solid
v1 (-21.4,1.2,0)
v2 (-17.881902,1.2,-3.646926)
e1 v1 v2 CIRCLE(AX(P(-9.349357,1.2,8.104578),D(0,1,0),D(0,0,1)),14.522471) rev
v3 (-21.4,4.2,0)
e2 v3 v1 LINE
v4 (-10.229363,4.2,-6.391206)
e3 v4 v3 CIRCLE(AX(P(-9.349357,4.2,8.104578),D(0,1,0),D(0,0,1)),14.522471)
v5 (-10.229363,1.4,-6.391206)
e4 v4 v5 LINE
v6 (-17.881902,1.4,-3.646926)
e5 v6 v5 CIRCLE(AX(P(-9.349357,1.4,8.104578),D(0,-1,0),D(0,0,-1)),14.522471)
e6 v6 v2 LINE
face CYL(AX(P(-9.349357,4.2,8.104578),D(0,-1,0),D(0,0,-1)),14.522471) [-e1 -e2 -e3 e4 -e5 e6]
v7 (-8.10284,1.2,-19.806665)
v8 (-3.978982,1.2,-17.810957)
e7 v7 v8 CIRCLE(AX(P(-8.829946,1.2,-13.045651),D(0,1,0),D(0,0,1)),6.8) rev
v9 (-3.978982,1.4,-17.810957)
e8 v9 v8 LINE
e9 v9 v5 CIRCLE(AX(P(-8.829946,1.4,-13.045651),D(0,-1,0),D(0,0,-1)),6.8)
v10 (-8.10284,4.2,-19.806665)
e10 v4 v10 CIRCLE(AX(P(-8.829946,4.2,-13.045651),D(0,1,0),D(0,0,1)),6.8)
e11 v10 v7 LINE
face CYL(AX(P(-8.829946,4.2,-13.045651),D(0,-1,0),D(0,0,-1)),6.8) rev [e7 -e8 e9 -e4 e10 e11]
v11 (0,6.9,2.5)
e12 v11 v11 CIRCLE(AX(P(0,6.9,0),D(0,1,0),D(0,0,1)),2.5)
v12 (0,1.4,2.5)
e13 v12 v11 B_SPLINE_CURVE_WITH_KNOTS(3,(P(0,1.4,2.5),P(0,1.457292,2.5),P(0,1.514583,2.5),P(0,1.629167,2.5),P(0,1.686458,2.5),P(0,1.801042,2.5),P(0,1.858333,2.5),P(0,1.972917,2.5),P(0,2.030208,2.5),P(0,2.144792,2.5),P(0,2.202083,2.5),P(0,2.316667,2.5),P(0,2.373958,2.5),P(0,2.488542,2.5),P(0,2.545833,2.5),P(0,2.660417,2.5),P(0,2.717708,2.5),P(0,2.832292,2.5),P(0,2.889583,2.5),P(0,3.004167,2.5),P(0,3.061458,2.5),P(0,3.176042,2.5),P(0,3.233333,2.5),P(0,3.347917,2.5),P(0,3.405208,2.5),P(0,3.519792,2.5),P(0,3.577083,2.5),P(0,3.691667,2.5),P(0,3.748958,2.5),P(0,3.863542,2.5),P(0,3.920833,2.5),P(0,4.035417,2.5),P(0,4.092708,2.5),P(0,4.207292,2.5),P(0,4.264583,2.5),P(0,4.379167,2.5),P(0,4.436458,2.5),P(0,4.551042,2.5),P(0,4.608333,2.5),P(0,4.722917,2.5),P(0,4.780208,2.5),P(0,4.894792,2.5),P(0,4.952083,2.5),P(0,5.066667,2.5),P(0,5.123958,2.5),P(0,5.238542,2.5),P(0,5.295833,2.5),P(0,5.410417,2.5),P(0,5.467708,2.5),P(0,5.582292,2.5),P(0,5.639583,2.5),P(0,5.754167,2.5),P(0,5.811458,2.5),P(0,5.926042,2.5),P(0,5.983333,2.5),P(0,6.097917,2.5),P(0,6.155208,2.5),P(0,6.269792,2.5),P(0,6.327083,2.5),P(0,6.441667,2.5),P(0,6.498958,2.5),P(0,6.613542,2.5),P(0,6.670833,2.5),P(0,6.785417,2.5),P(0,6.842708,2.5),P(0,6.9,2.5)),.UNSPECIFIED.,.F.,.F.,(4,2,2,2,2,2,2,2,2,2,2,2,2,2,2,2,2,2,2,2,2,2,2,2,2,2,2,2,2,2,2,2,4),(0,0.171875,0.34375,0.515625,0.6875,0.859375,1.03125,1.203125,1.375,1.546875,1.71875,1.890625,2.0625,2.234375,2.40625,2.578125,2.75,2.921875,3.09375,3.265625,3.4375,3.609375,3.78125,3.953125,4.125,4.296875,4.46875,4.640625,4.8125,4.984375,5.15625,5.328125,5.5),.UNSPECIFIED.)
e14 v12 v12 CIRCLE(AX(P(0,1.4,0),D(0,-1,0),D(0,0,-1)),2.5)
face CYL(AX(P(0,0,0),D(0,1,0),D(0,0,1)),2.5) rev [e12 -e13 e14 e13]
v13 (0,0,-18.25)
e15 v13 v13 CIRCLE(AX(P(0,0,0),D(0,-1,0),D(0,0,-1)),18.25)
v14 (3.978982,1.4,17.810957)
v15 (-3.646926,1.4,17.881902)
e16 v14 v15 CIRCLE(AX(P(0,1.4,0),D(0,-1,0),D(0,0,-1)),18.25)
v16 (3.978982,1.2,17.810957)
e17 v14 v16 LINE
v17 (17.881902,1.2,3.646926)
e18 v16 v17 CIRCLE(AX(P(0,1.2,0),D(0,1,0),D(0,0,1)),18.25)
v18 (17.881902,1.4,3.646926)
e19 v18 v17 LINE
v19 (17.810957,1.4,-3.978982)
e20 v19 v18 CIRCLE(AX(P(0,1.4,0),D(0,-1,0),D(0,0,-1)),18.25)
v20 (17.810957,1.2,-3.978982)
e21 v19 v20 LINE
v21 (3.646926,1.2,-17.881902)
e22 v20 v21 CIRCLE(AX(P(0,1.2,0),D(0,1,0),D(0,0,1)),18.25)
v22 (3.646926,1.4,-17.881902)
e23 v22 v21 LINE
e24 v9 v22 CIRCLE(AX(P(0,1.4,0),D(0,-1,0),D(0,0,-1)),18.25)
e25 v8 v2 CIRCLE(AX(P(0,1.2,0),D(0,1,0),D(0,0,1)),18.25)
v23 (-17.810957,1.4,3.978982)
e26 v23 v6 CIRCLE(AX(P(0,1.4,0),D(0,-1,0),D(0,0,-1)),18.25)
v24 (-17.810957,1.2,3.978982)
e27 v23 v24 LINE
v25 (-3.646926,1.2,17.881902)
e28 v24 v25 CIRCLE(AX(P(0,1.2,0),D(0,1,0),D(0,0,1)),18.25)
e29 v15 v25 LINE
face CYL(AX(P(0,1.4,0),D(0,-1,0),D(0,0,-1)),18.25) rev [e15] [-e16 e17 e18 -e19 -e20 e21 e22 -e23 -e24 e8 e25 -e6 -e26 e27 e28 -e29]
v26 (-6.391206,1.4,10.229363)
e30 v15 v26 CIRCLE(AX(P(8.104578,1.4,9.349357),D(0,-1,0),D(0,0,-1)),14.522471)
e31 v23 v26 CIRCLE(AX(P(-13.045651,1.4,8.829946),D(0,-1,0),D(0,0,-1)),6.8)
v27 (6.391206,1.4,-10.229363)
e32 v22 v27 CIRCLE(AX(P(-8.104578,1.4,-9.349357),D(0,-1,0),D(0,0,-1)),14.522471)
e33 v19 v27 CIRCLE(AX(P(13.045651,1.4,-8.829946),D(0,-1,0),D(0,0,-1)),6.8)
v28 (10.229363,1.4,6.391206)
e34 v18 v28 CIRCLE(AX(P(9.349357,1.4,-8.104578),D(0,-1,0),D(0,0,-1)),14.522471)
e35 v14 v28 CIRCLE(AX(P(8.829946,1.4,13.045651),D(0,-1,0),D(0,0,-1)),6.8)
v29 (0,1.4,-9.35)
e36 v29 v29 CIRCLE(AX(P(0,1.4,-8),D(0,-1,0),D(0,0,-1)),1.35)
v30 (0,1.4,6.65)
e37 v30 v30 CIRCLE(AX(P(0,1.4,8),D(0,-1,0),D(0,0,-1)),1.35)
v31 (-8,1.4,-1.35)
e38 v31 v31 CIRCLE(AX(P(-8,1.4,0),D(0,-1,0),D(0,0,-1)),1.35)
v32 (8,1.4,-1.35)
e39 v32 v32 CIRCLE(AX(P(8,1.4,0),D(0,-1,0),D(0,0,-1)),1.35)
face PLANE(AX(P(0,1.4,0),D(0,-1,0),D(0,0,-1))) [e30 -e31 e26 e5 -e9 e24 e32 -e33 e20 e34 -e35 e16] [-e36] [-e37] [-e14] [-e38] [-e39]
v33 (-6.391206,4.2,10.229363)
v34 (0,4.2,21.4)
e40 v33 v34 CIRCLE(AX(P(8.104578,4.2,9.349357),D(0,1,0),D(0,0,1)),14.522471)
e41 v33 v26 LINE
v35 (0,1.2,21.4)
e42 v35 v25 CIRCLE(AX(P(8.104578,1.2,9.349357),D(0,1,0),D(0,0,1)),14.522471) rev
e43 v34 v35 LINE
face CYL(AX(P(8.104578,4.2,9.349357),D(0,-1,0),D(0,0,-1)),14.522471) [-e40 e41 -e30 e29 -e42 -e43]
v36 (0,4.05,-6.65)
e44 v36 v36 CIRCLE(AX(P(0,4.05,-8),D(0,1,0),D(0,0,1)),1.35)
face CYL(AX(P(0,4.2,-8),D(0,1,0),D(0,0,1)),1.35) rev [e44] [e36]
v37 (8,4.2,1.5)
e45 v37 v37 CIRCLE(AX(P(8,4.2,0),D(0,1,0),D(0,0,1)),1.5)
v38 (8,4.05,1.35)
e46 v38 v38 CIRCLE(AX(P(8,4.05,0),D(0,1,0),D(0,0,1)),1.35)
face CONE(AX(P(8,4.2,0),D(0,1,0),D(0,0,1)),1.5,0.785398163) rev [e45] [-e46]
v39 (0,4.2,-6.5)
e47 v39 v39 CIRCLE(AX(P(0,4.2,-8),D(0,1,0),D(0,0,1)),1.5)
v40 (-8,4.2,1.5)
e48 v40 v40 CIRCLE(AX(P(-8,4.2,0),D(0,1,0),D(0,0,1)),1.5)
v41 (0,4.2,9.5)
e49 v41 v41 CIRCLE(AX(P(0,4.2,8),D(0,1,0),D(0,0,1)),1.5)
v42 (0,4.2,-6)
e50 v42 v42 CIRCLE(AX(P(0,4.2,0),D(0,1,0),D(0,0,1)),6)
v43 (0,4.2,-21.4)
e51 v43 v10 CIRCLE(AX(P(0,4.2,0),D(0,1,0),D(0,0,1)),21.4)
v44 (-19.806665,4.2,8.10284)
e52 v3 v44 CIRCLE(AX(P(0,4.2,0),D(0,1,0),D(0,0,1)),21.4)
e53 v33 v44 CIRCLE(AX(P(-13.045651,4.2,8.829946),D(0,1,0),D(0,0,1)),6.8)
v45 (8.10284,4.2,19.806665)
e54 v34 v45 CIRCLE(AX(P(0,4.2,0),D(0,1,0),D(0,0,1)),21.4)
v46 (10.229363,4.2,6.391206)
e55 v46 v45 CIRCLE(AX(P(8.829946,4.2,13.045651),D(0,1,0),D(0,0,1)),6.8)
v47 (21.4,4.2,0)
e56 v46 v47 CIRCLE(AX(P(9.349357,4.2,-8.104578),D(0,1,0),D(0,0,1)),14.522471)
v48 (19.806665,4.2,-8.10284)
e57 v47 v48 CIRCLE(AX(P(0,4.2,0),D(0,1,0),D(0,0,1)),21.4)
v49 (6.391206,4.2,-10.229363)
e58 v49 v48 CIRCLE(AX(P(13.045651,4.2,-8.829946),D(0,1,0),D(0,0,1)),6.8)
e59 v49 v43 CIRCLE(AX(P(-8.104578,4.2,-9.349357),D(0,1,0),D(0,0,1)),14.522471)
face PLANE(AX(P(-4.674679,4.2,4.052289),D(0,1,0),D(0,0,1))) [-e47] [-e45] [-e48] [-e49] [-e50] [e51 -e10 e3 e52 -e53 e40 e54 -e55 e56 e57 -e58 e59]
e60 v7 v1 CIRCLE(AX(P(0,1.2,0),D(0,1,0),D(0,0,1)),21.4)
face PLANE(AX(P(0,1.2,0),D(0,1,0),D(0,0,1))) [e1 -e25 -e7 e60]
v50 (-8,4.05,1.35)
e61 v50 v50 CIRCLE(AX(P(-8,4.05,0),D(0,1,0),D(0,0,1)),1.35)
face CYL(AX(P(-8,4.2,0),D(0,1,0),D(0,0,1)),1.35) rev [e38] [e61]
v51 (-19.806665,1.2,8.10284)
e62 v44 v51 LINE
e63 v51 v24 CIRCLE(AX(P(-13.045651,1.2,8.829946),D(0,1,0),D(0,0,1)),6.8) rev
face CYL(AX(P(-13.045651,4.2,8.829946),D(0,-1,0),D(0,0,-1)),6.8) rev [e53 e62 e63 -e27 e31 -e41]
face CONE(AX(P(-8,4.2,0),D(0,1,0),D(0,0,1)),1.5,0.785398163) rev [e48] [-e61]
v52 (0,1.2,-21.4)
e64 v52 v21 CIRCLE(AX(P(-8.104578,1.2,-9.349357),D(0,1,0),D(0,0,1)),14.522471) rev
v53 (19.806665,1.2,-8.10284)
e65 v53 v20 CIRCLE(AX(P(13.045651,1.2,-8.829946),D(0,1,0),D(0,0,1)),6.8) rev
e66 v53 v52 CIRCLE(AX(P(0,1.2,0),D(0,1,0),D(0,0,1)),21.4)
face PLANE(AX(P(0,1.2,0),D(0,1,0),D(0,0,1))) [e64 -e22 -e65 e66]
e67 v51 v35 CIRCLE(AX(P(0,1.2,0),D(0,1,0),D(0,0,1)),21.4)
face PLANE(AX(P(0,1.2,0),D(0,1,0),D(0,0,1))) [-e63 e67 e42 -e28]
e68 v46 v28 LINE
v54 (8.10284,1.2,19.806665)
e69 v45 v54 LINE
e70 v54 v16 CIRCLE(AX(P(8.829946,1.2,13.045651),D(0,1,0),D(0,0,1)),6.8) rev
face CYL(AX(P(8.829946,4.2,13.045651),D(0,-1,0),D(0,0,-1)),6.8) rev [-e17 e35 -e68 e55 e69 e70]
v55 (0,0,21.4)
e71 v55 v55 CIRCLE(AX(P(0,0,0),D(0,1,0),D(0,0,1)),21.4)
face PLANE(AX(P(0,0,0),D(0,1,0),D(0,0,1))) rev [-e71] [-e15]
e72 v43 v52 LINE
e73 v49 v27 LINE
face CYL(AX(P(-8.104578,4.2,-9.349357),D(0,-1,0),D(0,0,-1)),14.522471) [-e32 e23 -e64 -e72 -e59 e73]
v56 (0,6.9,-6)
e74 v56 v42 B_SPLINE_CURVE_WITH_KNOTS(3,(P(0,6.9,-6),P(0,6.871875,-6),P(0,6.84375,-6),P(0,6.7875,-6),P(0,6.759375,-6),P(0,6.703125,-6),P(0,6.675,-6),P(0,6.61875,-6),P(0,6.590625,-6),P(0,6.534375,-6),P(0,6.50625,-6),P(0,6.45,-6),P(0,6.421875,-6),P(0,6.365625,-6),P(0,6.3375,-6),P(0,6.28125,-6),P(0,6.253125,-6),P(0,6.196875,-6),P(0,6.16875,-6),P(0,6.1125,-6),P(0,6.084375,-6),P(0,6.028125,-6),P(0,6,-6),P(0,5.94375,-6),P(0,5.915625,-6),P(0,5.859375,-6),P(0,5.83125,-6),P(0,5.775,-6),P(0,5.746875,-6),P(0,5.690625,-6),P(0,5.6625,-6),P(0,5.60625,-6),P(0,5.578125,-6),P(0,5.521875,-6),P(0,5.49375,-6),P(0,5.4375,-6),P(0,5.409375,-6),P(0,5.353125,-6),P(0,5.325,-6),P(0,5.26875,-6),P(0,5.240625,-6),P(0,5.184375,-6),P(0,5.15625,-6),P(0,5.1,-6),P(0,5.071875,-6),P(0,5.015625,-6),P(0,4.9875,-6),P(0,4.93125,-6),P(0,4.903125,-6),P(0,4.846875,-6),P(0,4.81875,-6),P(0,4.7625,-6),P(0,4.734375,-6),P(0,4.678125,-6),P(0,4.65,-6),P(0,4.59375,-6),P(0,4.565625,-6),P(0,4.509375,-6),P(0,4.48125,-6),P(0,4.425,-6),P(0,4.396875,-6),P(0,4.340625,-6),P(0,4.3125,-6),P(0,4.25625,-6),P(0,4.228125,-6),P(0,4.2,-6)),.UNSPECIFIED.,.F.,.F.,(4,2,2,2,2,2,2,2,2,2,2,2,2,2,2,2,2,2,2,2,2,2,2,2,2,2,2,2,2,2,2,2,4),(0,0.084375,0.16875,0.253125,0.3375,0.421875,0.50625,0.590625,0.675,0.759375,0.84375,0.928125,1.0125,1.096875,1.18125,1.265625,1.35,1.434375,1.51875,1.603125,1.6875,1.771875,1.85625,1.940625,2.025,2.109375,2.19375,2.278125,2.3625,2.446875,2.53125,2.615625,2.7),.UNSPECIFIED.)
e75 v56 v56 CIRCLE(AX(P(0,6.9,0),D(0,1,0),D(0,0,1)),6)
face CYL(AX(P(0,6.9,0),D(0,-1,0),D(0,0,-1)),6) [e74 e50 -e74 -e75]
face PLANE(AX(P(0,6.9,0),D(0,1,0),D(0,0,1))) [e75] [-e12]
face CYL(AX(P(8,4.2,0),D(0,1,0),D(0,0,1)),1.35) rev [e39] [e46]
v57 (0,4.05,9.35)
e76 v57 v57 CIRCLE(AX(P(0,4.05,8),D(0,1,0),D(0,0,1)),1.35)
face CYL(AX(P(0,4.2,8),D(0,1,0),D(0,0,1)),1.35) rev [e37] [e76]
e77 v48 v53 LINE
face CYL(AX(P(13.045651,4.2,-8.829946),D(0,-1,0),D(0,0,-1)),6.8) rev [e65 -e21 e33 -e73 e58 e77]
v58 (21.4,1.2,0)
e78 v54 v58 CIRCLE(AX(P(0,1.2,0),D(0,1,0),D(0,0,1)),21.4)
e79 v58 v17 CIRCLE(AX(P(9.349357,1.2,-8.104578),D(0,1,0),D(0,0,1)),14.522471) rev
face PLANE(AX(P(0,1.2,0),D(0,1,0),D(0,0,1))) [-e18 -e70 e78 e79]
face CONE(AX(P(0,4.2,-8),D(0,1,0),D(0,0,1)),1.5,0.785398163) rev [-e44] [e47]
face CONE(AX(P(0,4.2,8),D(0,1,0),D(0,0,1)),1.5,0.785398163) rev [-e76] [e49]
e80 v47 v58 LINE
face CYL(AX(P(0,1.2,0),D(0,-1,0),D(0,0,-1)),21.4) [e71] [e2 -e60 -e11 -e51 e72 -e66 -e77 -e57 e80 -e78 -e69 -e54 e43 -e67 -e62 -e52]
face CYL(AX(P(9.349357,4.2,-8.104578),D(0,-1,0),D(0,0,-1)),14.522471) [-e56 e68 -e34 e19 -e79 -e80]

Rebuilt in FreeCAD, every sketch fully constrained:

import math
import FreeCAD as App
import Part
import Sketcher
from FreeCAD import Vector
Q = App.Units.Quantity

doc = App.newDocument("Part")
params = doc.addObject("Spreadsheet::Sheet", "Params")
for row, (alias, value) in enumerate([
    ("sketch1_diameter", "42.8 mm"),
    ("pad1_length", "1.2 mm"),
    ("sketch2_radius", "21.4 mm"),
    ("sketch2_radius2", "6.8 mm"),
    ("pad2_length", "4.2 mm"),
    ("sketch3_diameter", "36.5 mm"),
    ("pocket1_length", "1.4 mm"),
    ("sketch4_diameter", "12 mm"),
    ("pad3_length", "2.7 mm"),
    ("sketch5_diameter", "5 mm"),
    ("sketch6_diameter", "2.7 mm"),
    ("hole_diameter", "2.7 mm"),
    ("hole_csink_diameter", "3 mm"),
], start=1):
    params.set(f"A{row}", alias)
    params.set(f"B{row}", "=" + value)
    params.setAlias(f"B{row}", alias)

body = doc.addObject("PartDesign::Body", "Body")

# Sketch on XZ plane
sketch1 = body.newObject("Sketcher::SketchObject", "Sketch")
sketch1.AttachmentSupport = (doc.getObject("XZ_Plane"), [""])
sketch1.MapMode = "FlatFace"
sketch1.addGeometry(Part.Circle(Vector(0, 0, 0), Vector(0, 0, 1), 21), False)
sketch1.addConstraint([
    Sketcher.Constraint("Coincident", 0, 3, -1, 1),
    Sketcher.Constraint("Diameter", 0, Q("42.8 mm")),
])
sketch1.setExpression("Constraints[1]", "Params.sketch1_diameter")
pad1 = body.newObject("PartDesign::Pad", "Pad")
pad1.Profile = sketch1
pad1.setExpression("Length", "Params.pad1_length")
pad1.Reversed = True

# Sketch on XZ plane
sketch2 = body.newObject("Sketcher::SketchObject", "Sketch001")
sketch2.AttachmentSupport = (doc.getObject("XZ_Plane"), [""])
sketch2.MapMode = "FlatFace"
sketch2.addGeometry([
    Part.ArcOfCircle(Part.Circle(Vector(0, 0, 0), Vector(0, 0, 1), 21), math.radians(-112), math.radians(-90)),  # 0
    Part.ArcOfCircle(Part.Circle(Vector(-9, -13, 0), Vector(0, 0, 1), 7), math.radians(-84), math.radians(102)),  # 1
    Part.ArcOfCircle(Part.Circle(Vector(-9, 8, 0), Vector(0, 0, 1), 15), math.radians(-146), math.radians(-93)),  # 2
    Part.ArcOfCircle(Part.Circle(Vector(0, 0, 0), Vector(0, 0, 1), 21), math.radians(158), math.radians(180)),  # 3
    Part.ArcOfCircle(Part.Circle(Vector(-13, 9, 0), Vector(0, 0, 1), 7), math.radians(-174), math.radians(12)),  # 4
    Part.ArcOfCircle(Part.Circle(Vector(8, 9, 0), Vector(0, 0, 1), 15), math.radians(124), math.radians(177)),  # 5
    Part.ArcOfCircle(Part.Circle(Vector(0, 0, 0), Vector(0, 0, 1), 21), math.radians(68), math.radians(90)),  # 6
    Part.ArcOfCircle(Part.Circle(Vector(9, 13, 0), Vector(0, 0, 1), 7), math.radians(96), math.radians(282)),  # 7
    Part.ArcOfCircle(Part.Circle(Vector(9, -8, 0), Vector(0, 0, 1), 15), math.radians(34), math.radians(87)),  # 8
    Part.ArcOfCircle(Part.Circle(Vector(0, 0, 0), Vector(0, 0, 1), 21), math.radians(-22), math.radians(0)),  # 9
    Part.ArcOfCircle(Part.Circle(Vector(13, -9, 0), Vector(0, 0, 1), 7), math.radians(6), math.radians(192)),  # 10
    Part.ArcOfCircle(Part.Circle(Vector(-8, -9, 0), Vector(0, 0, 1), 15), math.radians(-56), math.radians(-3)),  # 11
], False)
sketch2.addConstraint([
    Sketcher.Constraint("Coincident", 0, 1, 1, 1),
    Sketcher.Constraint("Coincident", 1, 2, 2, 2),
    Sketcher.Constraint("Coincident", 2, 1, 3, 2),
    Sketcher.Constraint("Coincident", 3, 1, 4, 1),
    Sketcher.Constraint("Coincident", 4, 2, 5, 2),
    Sketcher.Constraint("Coincident", 5, 1, 6, 2),
    Sketcher.Constraint("Coincident", 6, 1, 7, 1),
    Sketcher.Constraint("Coincident", 7, 2, 8, 2),
    Sketcher.Constraint("Coincident", 8, 1, 9, 2),
    Sketcher.Constraint("Coincident", 9, 1, 10, 1),
    Sketcher.Constraint("Coincident", 10, 2, 11, 2),
    Sketcher.Constraint("Coincident", 11, 1, 0, 2),
    Sketcher.Constraint("Coincident", 0, 3, -1, 1),
    Sketcher.Constraint("Coincident", 3, 3, -1, 1),
    Sketcher.Constraint("Coincident", 6, 3, -1, 1),
    Sketcher.Constraint("Coincident", 9, 3, -1, 1),
    Sketcher.Constraint("Equal", 0, 3),
    Sketcher.Constraint("Equal", 1, 4),
    Sketcher.Constraint("Equal", 2, 5),
    Sketcher.Constraint("Equal", 3, 6),
    Sketcher.Constraint("Equal", 4, 7),
    Sketcher.Constraint("Equal", 5, 8),
    Sketcher.Constraint("Equal", 6, 9),
    Sketcher.Constraint("Equal", 7, 10),
    Sketcher.Constraint("Equal", 8, 11),
    Sketcher.Constraint("Symmetric", 1, 3, 7, 3, -1, 1),
    Sketcher.Constraint("Symmetric", 2, 3, 8, 3, -1, 1),
    Sketcher.Constraint("Symmetric", 4, 3, 10, 3, -1, 1),
    Sketcher.Constraint("Symmetric", 5, 3, 11, 3, -1, 1),
    Sketcher.Constraint("PointOnObject", 2, 1, -1),
    Sketcher.Constraint("PointOnObject", 5, 1, -2),
    Sketcher.Constraint("Radius", 0, Q("21.4 mm")),
    Sketcher.Constraint("Radius", 1, Q("6.8 mm")),
    Sketcher.Constraint("Radius", 2, Q("14.522471 mm")),
    Sketcher.Constraint("DistanceY", 1, 3, -1, 1, Q("13.045651 mm")),
    Sketcher.Constraint("DistanceY", -1, 1, 2, 3, Q("8.104578 mm")),
    Sketcher.Constraint("DistanceX", 4, 3, -1, 1, Q("13.045651 mm")),
    Sketcher.Constraint("DistanceX", -1, 1, 5, 3, Q("8.104578 mm")),
    Sketcher.Constraint("DistanceX", 0, 1, -1, 1, Q("8.10284 mm")),
    Sketcher.Constraint("DistanceY", -1, 1, 3, 1, Q("8.10284 mm")),
])
sketch2.setExpression("Constraints[31]", "Params.sketch2_radius")
sketch2.setExpression("Constraints[32]", "Params.sketch2_radius2")
pad2 = body.newObject("PartDesign::Pad", "Pad001")
pad2.Profile = sketch2
pad2.setExpression("Length", "Params.pad2_length")
pad2.Reversed = True

# Sketch on XZ plane
sketch3 = body.newObject("Sketcher::SketchObject", "Sketch002")
sketch3.AttachmentSupport = (doc.getObject("XZ_Plane"), [""])
sketch3.MapMode = "FlatFace"
sketch3.addGeometry(Part.Circle(Vector(0, 0, 0), Vector(0, 0, 1), 18), False)
sketch3.addConstraint([
    Sketcher.Constraint("Coincident", 0, 3, -1, 1),
    Sketcher.Constraint("Diameter", 0, Q("36.5 mm")),
])
sketch3.setExpression("Constraints[1]", "Params.sketch3_diameter")
pocket1 = body.newObject("PartDesign::Pocket", "Pocket")
pocket1.Profile = sketch3
pocket1.setExpression("Length", "Params.pocket1_length")

# Sketch on XZ plane
sketch4 = body.newObject("Sketcher::SketchObject", "Sketch003")
sketch4.AttachmentSupport = (doc.getObject("XZ_Plane"), [""])
sketch4.MapMode = "FlatFace"
sketch4.AttachmentOffset = App.Placement(Vector(0, 0, -4.2), App.Rotation())
sketch4.addGeometry(Part.Circle(Vector(0, 0, 0), Vector(0, 0, 1), 6), False)
sketch4.addConstraint([
    Sketcher.Constraint("Coincident", 0, 3, -1, 1),
    Sketcher.Constraint("Diameter", 0, Q("12 mm")),
])
sketch4.setExpression("Constraints[1]", "Params.sketch4_diameter")
pad3 = body.newObject("PartDesign::Pad", "Pad002")
pad3.Profile = sketch4
pad3.setExpression("Length", "Params.pad3_length")
pad3.Reversed = True

# Sketch on XZ plane
sketch5 = body.newObject("Sketcher::SketchObject", "Sketch004")
sketch5.AttachmentSupport = (doc.getObject("XZ_Plane"), [""])
sketch5.MapMode = "FlatFace"
sketch5.AttachmentOffset = App.Placement(Vector(0, 0, -6.9), App.Rotation())
sketch5.addGeometry(Part.Circle(Vector(0, 0, 0), Vector(0, 0, 1), 2.5), False)
sketch5.addConstraint([
    Sketcher.Constraint("Coincident", 0, 3, -1, 1),
    Sketcher.Constraint("Diameter", 0, Q("5 mm")),
])
sketch5.setExpression("Constraints[1]", "Params.sketch5_diameter")
pocket2 = body.newObject("PartDesign::Pocket", "Pocket001")
pocket2.Profile = sketch5
pocket2.Type = "ThroughAll"
pocket2.Reversed = True

# Sketch on XZ plane
sketch6 = body.newObject("Sketcher::SketchObject", "Sketch005")
sketch6.AttachmentSupport = (doc.getObject("XZ_Plane"), [""])
sketch6.MapMode = "FlatFace"
sketch6.AttachmentOffset = App.Placement(Vector(0, 0, -4.2), App.Rotation())
sketch6.addGeometry([
    Part.Circle(Vector(-8, 0, 0), Vector(0, 0, 1), 1.4),
    Part.Circle(Vector(0, -8, 0), Vector(0, 0, 1), 1.4),
    Part.Circle(Vector(8, 0, 0), Vector(0, 0, 1), 1.4),
    Part.Circle(Vector(0, 8, 0), Vector(0, 0, 1), 1.4),
], False)
sketch6.addConstraint([
    Sketcher.Constraint("Equal", 0, 1),
    Sketcher.Constraint("Equal", 1, 2),
    Sketcher.Constraint("Equal", 2, 3),
    Sketcher.Constraint("Symmetric", 0, 3, 2, 3, -1, 1),
    Sketcher.Constraint("Symmetric", 1, 3, 3, 3, -1, 1),
    Sketcher.Constraint("PointOnObject", 0, 3, -1),
    Sketcher.Constraint("PointOnObject", 1, 3, -2),
    Sketcher.Constraint("Diameter", 0, Q("2.7 mm")),
    Sketcher.Constraint("DistanceX", 0, 3, -1, 1, Q("8 mm")),
    Sketcher.Constraint("DistanceY", 1, 3, -1, 1, Q("8 mm")),
])
sketch6.setExpression("Constraints[7]", "Params.sketch6_diameter")
doc.recompute()
hole = body.newObject("PartDesign::Hole", "Hole")
hole.Profile = sketch6
hole.ThreadType = "None"
hole.setExpression("Diameter", "Params.hole_diameter")
hole.DepthType = "ThroughAll"
hole.HoleCutType = "Countersink"
hole.setExpression("HoleCutDiameter", "Params.hole_csink_diameter")
hole.HoleCutCountersinkAngle = 90
hole.Reversed = True

doc.recompute()
